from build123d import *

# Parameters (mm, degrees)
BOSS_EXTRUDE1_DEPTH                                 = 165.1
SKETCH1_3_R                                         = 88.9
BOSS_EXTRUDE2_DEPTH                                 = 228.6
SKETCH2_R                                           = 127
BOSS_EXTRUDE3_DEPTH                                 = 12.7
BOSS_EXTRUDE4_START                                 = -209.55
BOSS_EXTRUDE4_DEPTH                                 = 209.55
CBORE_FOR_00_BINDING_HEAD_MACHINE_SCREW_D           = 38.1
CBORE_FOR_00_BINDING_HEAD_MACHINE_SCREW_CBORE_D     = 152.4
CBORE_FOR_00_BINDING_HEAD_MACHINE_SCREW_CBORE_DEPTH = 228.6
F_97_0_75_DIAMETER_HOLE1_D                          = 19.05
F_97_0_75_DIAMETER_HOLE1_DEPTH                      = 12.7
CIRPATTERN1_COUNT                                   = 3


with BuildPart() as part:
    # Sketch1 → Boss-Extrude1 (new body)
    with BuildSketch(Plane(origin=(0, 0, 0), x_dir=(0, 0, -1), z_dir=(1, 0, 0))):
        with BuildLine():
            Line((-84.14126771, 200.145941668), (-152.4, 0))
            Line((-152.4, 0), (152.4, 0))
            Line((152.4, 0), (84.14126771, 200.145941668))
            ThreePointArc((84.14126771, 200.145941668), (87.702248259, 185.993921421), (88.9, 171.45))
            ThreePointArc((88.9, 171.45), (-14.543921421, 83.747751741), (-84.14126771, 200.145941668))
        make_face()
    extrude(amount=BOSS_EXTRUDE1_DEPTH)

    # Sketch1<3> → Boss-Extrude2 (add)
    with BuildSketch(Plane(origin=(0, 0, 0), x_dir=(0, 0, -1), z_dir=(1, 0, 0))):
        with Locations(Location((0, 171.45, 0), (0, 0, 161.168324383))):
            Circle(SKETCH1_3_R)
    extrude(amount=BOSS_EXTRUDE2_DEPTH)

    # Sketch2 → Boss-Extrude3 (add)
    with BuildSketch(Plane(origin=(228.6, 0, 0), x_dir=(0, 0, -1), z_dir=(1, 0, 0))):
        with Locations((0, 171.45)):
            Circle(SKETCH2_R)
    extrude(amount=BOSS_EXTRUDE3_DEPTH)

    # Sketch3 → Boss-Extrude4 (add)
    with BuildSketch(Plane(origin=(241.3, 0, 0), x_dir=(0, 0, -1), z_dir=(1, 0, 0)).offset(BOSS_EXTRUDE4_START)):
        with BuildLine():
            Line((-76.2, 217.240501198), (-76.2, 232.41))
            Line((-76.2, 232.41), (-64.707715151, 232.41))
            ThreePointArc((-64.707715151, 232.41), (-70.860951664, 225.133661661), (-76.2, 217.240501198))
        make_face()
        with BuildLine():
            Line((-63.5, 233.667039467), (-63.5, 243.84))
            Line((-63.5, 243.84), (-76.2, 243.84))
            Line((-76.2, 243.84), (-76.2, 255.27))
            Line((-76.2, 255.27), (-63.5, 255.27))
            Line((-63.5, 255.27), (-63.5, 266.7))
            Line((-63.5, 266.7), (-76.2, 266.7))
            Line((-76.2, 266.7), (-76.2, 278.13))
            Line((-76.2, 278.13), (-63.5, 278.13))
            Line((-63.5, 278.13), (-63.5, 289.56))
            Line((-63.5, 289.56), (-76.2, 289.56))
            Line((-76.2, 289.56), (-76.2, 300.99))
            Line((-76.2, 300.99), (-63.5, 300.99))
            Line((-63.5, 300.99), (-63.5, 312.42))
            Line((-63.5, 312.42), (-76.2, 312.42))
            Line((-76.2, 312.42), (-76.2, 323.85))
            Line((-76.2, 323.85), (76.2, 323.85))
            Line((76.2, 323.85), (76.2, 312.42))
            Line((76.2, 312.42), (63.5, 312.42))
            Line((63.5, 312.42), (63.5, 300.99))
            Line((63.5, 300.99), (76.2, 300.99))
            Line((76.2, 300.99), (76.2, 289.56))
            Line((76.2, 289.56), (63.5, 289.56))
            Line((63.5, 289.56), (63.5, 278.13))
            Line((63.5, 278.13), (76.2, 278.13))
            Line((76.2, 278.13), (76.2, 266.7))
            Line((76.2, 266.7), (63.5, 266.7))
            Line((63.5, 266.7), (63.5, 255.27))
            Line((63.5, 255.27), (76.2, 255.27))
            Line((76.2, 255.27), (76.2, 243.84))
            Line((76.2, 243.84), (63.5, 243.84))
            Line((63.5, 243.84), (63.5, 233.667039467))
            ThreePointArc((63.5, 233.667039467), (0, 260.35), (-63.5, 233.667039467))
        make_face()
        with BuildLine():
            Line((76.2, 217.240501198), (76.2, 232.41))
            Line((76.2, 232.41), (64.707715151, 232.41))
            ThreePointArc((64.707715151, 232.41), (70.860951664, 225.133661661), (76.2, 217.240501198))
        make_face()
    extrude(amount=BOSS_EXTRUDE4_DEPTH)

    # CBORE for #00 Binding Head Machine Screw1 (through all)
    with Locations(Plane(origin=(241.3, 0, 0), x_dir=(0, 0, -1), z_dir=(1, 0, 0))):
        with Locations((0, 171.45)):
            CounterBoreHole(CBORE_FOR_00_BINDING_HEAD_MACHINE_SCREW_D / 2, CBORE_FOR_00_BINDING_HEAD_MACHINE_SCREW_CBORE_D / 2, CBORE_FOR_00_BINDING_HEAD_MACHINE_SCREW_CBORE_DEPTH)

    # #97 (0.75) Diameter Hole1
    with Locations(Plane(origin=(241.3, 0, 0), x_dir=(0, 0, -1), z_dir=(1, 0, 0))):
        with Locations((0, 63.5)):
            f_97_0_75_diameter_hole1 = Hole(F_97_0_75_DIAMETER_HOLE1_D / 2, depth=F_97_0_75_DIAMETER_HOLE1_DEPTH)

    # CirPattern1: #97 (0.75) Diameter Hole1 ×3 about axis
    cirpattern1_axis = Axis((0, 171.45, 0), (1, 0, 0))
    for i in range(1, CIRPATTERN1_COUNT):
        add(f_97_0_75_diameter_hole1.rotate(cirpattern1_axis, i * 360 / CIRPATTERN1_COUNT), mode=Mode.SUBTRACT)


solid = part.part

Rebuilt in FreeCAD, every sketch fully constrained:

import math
import FreeCAD as App
import Part
import Sketcher

V = App.Vector
Q = App.Units.Quantity

doc = App.newDocument("Part")
params = doc.addObject("Spreadsheet::Sheet", "Params")
for row, (alias, value) in enumerate([
    ("sketch1_radius", "3.5 in"),
    ("sketch1_height", "12 in"),
    ("pad1_length", "6.5 in"),
    ("sketch2_diameter", "7 in"),
    ("pad2_length", "9 in"),
    ("sketch3_diameter", "10 in"),
    ("pad3_length", "0.5 in"),
    ("sketch4_radius", "3.5 in"),
    ("sketch4_height", "6 in"),
    ("sketch4_height2", "0.5 in"),
    ("sketch4_width", "0.45 in"),
    ("sketch4_width2", "2.4 in"),
    ("pad4_length", "8.25 in"),
    ("sketch5_diameter", "1.5 in"),
    ("hole_diameter", "1.5 in"),
    ("hole_cbore_diameter", "6 in"),
    ("hole_cbore_depth", "9 in"),
    ("sketch6_diameter", "0.75 in"),
    ("hole2_diameter", "0.75 in"),
    ("hole2_depth", "0.5 in"),
], start=1):
    params.set(f"A{row}", alias)
    params.set(f"B{row}", "=" + value)
    params.setAlias(f"B{row}", alias)

body = doc.addObject("PartDesign::Body", "Body")

# Sketch on YZ plane
sketch1 = body.newObject("Sketcher::SketchObject", "Sketch")
sketch1.AttachmentSupport = (doc.getObject("YZ_Plane"), [""])
sketch1.MapMode = "FlatFace"
sketch1.addGeometry(Part.LineSegment(V(200.145942, 84.141268, 0), V(0, 152.4, 0)), False)
sketch1.addGeometry(Part.LineSegment(V(0, 152.4, 0), V(0, -152.4, 0)), False)
sketch1.addGeometry(Part.LineSegment(V(0, -152.4, 0), V(200.145942, -84.141268, 0)), False)
sketch1.addGeometry(Part.ArcOfCircle(Part.Circle(V(171.45, 0, 0), V(0, 0, 1), 88.9), math.radians(-90), math.radians(-71.168324)), False)
sketch1.addGeometry(Part.ArcOfCircle(Part.Circle(V(171.45, 0, 0), V(0, 0, 1), 88.9), math.radians(71.168324), math.radians(270)), False)
sketch1.addConstraint(Sketcher.Constraint("Coincident", 0, 2, 1, 1))
sketch1.addConstraint(Sketcher.Constraint("Coincident", 1, 2, 2, 1))
sketch1.addConstraint(Sketcher.Constraint("Tangent", 2, 2, 3, 2))
sketch1.addConstraint(Sketcher.Constraint("Tangent", 3, 1, 4, 2))
sketch1.addConstraint(Sketcher.Constraint("Tangent", 4, 1, 0, 1))
sketch1.addConstraint(Sketcher.Constraint("Vertical", 1))
sketch1.addConstraint(Sketcher.Constraint("Equal", 3, 4))
sketch1.addConstraint(Sketcher.Constraint("Symmetric", 0, 2, 1, 2, -1, 1))
sketch1.addConstraint(Sketcher.Constraint("PointOnObject", 3, 3, -1))
sketch1.addConstraint(Sketcher.Constraint("Vertical", 4, 3, 3, 1))
sketch1.addConstraint(Sketcher.Constraint("Radius", 3, Q("3.5 in")))
sketch1.addConstraint(Sketcher.Constraint("DistanceY", 1, 2, 1, 1, Q("12 in")))
sketch1.addConstraint(Sketcher.Constraint("DistanceX", -1, 1, 3, 3, Q("6.75 in")))
sketch1.setExpression("Constraints[10]", "Params.sketch1_radius")
sketch1.setExpression("Constraints[11]", "Params.sketch1_height")
pad1 = body.newObject("PartDesign::Pad", "Pad")
pad1.Profile = sketch1
pad1.setExpression("Length", "Params.pad1_length")

# Sketch on YZ plane
sketch2 = body.newObject("Sketcher::SketchObject", "Sketch001")
sketch2.AttachmentSupport = (doc.getObject("YZ_Plane"), [""])
sketch2.MapMode = "FlatFace"
sketch2.addGeometry(Part.Circle(V(171.45, 0, 0), V(0, 0, 1), 88.9), False)
sketch2.addConstraint(Sketcher.Constraint("PointOnObject", 0, 3, -1))
sketch2.addConstraint(Sketcher.Constraint("Diameter", 0, Q("7 in")))
sketch2.addConstraint(Sketcher.Constraint("DistanceX", -1, 1, 0, 3, Q("6.75 in")))
sketch2.setExpression("Constraints[1]", "Params.sketch2_diameter")
pad2 = body.newObject("PartDesign::Pad", "Pad001")
pad2.Profile = sketch2
pad2.setExpression("Length", "Params.pad2_length")

# Sketch on YZ plane
sketch3 = body.newObject("Sketcher::SketchObject", "Sketch002")
sketch3.AttachmentSupport = (doc.getObject("YZ_Plane"), [""])
sketch3.MapMode = "FlatFace"
sketch3.AttachmentOffset = App.Placement(V(0, 0, 9 * 25.4), App.Rotation())
sketch3.addGeometry(Part.Circle(V(171.45, 0, 0), V(0, 0, 1), 127), False)
sketch3.addConstraint(Sketcher.Constraint("PointOnObject", 0, 3, -1))
sketch3.addConstraint(Sketcher.Constraint("Diameter", 0, Q("10 in")))
sketch3.addConstraint(Sketcher.Constraint("DistanceX", -1, 1, 0, 3, Q("6.75 in")))
sketch3.setExpression("Constraints[1]", "Params.sketch3_diameter")
pad3 = body.newObject("PartDesign::Pad", "Pad002")
pad3.Profile = sketch3
pad3.setExpression("Length", "Params.pad3_length")

# Sketch on YZ plane
sketch4 = body.newObject("Sketcher::SketchObject", "Sketch003")
sketch4.AttachmentSupport = (doc.getObject("YZ_Plane"), [""])
sketch4.MapMode = "FlatFace"
sketch4.AttachmentOffset = App.Placement(V(0, 0, 1.25 * 25.4), App.Rotation())
sketch4.addGeometry(Part.LineSegment(V(232.41, 76.2, 0), V(217.240501, 76.2, 0)), False)
sketch4.addGeometry(Part.ArcOfCircle(Part.Circle(V(171.45, 0, 0), V(0, 0, 1), 88.9), math.radians(46.708192), math.radians(58.997281)), False)
sketch4.addGeometry(Part.LineSegment(V(232.41, 64.707715, 0), V(232.41, 76.2, 0)), False)
sketch4.addGeometry(Part.LineSegment(V(243.84, 63.5, 0), V(233.667039, 63.5, 0)), False)
sketch4.addGeometry(Part.ArcOfCircle(Part.Circle(V(171.45, 0, 0), V(0, 0, 1), 88.9), math.radians(-45.584691), math.radians(45.584691)), False)
sketch4.addGeometry(Part.LineSegment(V(233.667039, -63.5, 0), V(243.84, -63.5, 0)), False)
sketch4.addGeometry(Part.LineSegment(V(243.84, -63.5, 0), V(243.84, -76.2, 0)), False)
sketch4.addGeometry(Part.LineSegment(V(243.84, -76.2, 0), V(255.27, -76.2, 0)), False)
sketch4.addGeometry(Part.LineSegment(V(255.27, -76.2, 0), V(255.27, -63.5, 0)), False)
sketch4.addGeometry(Part.LineSegment(V(255.27, -63.5, 0), V(266.7, -63.5, 0)), False)
sketch4.addGeometry(Part.LineSegment(V(266.7, -63.5, 0), V(266.7, -76.2, 0)), False)
sketch4.addGeometry(Part.LineSegment(V(266.7, -76.2, 0), V(278.13, -76.2, 0)), False)
sketch4.addGeometry(Part.LineSegment(V(278.13, -76.2, 0), V(278.13, -63.5, 0)), False)
sketch4.addGeometry(Part.LineSegment(V(278.13, -63.5, 0), V(289.56, -63.5, 0)), False)
sketch4.addGeometry(Part.LineSegment(V(289.56, -63.5, 0), V(289.56, -76.2, 0)), False)
sketch4.addGeometry(Part.LineSegment(V(289.56, -76.2, 0), V(300.99, -76.2, 0)), False)
sketch4.addGeometry(Part.LineSegment(V(300.99, -76.2, 0), V(300.99, -63.5, 0)), False)
sketch4.addGeometry(Part.LineSegment(V(300.99, -63.5, 0), V(312.42, -63.5, 0)), False)
sketch4.addGeometry(Part.LineSegment(V(312.42, -63.5, 0), V(312.42, -76.2, 0)), False)
sketch4.addGeometry(Part.LineSegment(V(312.42, -76.2, 0), V(323.85, -76.2, 0)), False)
sketch4.addGeometry(Part.LineSegment(V(323.85, -76.2, 0), V(323.85, 76.2, 0)), False)
sketch4.addGeometry(Part.LineSegment(V(323.85, 76.2, 0), V(312.42, 76.2, 0)), False)
sketch4.addGeometry(Part.LineSegment(V(312.42, 76.2, 0), V(312.42, 63.5, 0)), False)
sketch4.addGeometry(Part.LineSegment(V(312.42, 63.5, 0), V(300.99, 63.5, 0)), False)
sketch4.addGeometry(Part.LineSegment(V(300.99, 63.5, 0), V(300.99, 76.2, 0)), False)
sketch4.addGeometry(Part.LineSegment(V(300.99, 76.2, 0), V(289.56, 76.2, 0)), False)
sketch4.addGeometry(Part.LineSegment(V(289.56, 76.2, 0), V(289.56, 63.5, 0)), False)
sketch4.addGeometry(Part.LineSegment(V(289.56, 63.5, 0), V(278.13, 63.5, 0)), False)
sketch4.addGeometry(Part.LineSegment(V(278.13, 63.5, 0), V(278.13, 76.2, 0)), False)
sketch4.addGeometry(Part.LineSegment(V(278.13, 76.2, 0), V(266.7, 76.2, 0)), False)
sketch4.addGeometry(Part.LineSegment(V(266.7, 76.2, 0), V(266.7, 63.5, 0)), False)
sketch4.addGeometry(Part.LineSegment(V(266.7, 63.5, 0), V(255.27, 63.5, 0)), False)
sketch4.addGeometry(Part.LineSegment(V(255.27, 63.5, 0), V(255.27, 76.2, 0)), False)
sketch4.addGeometry(Part.LineSegment(V(255.27, 76.2, 0), V(243.84, 76.2, 0)), False)
sketch4.addGeometry(Part.LineSegment(V(243.84, 76.2, 0), V(243.84, 63.5, 0)), False)
sketch4.addGeometry(Part.LineSegment(V(217.240501, -76.2, 0), V(232.41, -76.2, 0)), False)
sketch4.addGeometry(Part.LineSegment(V(232.41, -76.2, 0), V(232.41, -64.707715, 0)), False)
sketch4.addGeometry(Part.ArcOfCircle(Part.Circle(V(171.45, 0, 0), V(0, 0, 1), 88.9), math.radians(-58.997281), math.radians(-46.708192)), False)
sketch4.addConstraint(Sketcher.Constraint("Coincident", 0, 2, 1, 2))
sketch4.addConstraint(Sketcher.Constraint("Coincident", 1, 1, 2, 1))
sketch4.addConstraint(Sketcher.Constraint("Coincident", 2, 2, 0, 1))
sketch4.addConstraint(Sketcher.Constraint("Coincident", 3, 2, 4, 2))
sketch4.addConstraint(Sketcher.Constraint("Coincident", 4, 1, 5, 1))
sketch4.addConstraint(Sketcher.Constraint("Coincident", 5, 2, 6, 1))
sketch4.addConstraint(Sketcher.Constraint("Coincident", 6, 2, 7, 1))
sketch4.addConstraint(Sketcher.Constraint("Coincident", 7, 2, 8, 1))
sketch4.addConstraint(Sketcher.Constraint("Coincident", 8, 2, 9, 1))
sketch4.addConstraint(Sketcher.Constraint("Coincident", 9, 2, 10, 1))
sketch4.addConstraint(Sketcher.Constraint("Coincident", 10, 2, 11, 1))
sketch4.addConstraint(Sketcher.Constraint("Coincident", 11, 2, 12, 1))
sketch4.addConstraint(Sketcher.Constraint("Coincident", 12, 2, 13, 1))
sketch4.addConstraint(Sketcher.Constraint("Coincident", 13, 2, 14, 1))
sketch4.addConstraint(Sketcher.Constraint("Coincident", 14, 2, 15, 1))
sketch4.addConstraint(Sketcher.Constraint("Coincident", 15, 2, 16, 1))
sketch4.addConstraint(Sketcher.Constraint("Coincident", 16, 2, 17, 1))
sketch4.addConstraint(Sketcher.Constraint("Coincident", 17, 2, 18, 1))
sketch4.addConstraint(Sketcher.Constraint("Coincident", 18, 2, 19, 1))
sketch4.addConstraint(Sketcher.Constraint("Coincident", 19, 2, 20, 1))
sketch4.addConstraint(Sketcher.Constraint("Coincident", 20, 2, 21, 1))
sketch4.addConstraint(Sketcher.Constraint("Coincident", 21, 2, 22, 1))
sketch4.addConstraint(Sketcher.Constraint("Coincident", 22, 2, 23, 1))
sketch4.addConstraint(Sketcher.Constraint("Coincident", 23, 2, 24, 1))
sketch4.addConstraint(Sketcher.Constraint("Coincident", 24, 2, 25, 1))
sketch4.addConstraint(Sketcher.Constraint("Coincident", 25, 2, 26, 1))
sketch4.addConstraint(Sketcher.Constraint("Coincident", 26, 2, 27, 1))
sketch4.addConstraint(Sketcher.Constraint("Coincident", 27, 2, 28, 1))
sketch4.addConstraint(Sketcher.Constraint("Coincident", 28, 2, 29, 1))
sketch4.addConstraint(Sketcher.Constraint("Coincident", 29, 2, 30, 1))
sketch4.addConstraint(Sketcher.Constraint("Coincident", 30, 2, 31, 1))
sketch4.addConstraint(Sketcher.Constraint("Coincident", 31, 2, 32, 1))
sketch4.addConstraint(Sketcher.Constraint("Coincident", 32, 2, 33, 1))
sketch4.addConstraint(Sketcher.Constraint("Coincident", 33, 2, 34, 1))
sketch4.addConstraint(Sketcher.Constraint("Coincident", 34, 2, 3, 1))
sketch4.addConstraint(Sketcher.Constraint("Coincident", 35, 2, 36, 1))
sketch4.addConstraint(Sketcher.Constraint("Coincident", 36, 2, 37, 2))
sketch4.addConstraint(Sketcher.Constraint("Coincident", 37, 1, 35, 1))
sketch4.addConstraint(Sketcher.Constraint("Horizontal", 0))
sketch4.addConstraint(Sketcher.Constraint("Vertical", 2))
sketch4.addConstraint(Sketcher.Constraint("Horizontal", 3))
sketch4.addConstraint(Sketcher.Constraint("Horizontal", 5))
sketch4.addConstraint(Sketcher.Constraint("Vertical", 6))
sketch4.addConstraint(Sketcher.Constraint("Horizontal", 7))
sketch4.addConstraint(Sketcher.Constraint("Vertical", 8))
sketch4.addConstraint(Sketcher.Constraint("Horizontal", 9))
sketch4.addConstraint(Sketcher.Constraint("Vertical", 10))
sketch4.addConstraint(Sketcher.Constraint("Horizontal", 11))
sketch4.addConstraint(Sketcher.Constraint("Vertical", 12))
sketch4.addConstraint(Sketcher.Constraint("Horizontal", 13))
sketch4.addConstraint(Sketcher.Constraint("Vertical", 14))
sketch4.addConstraint(Sketcher.Constraint("Horizontal", 15))
sketch4.addConstraint(Sketcher.Constraint("Vertical", 16))
sketch4.addConstraint(Sketcher.Constraint("Horizontal", 17))
sketch4.addConstraint(Sketcher.Constraint("Vertical", 18))
sketch4.addConstraint(Sketcher.Constraint("Horizontal", 19))
sketch4.addConstraint(Sketcher.Constraint("Vertical", 20))
sketch4.addConstraint(Sketcher.Constraint("Horizontal", 21))
sketch4.addConstraint(Sketcher.Constraint("Vertical", 22))
sketch4.addConstraint(Sketcher.Constraint("Horizontal", 23))
sketch4.addConstraint(Sketcher.Constraint("Vertical", 24))
sketch4.addConstraint(Sketcher.Constraint("Horizontal", 25))
sketch4.addConstraint(Sketcher.Constraint("Vertical", 26))
sketch4.addConstraint(Sketcher.Constraint("Horizontal", 27))
sketch4.addConstraint(Sketcher.Constraint("Vertical", 28))
sketch4.addConstraint(Sketcher.Constraint("Horizontal", 29))
sketch4.addConstraint(Sketcher.Constraint("Vertical", 30))
sketch4.addConstraint(Sketcher.Constraint("Horizontal", 31))
sketch4.addConstraint(Sketcher.Constraint("Vertical", 32))
sketch4.addConstraint(Sketcher.Constraint("Horizontal", 33))
sketch4.addConstraint(Sketcher.Constraint("Vertical", 34))
sketch4.addConstraint(Sketcher.Constraint("Horizontal", 35))
sketch4.addConstraint(Sketcher.Constraint("Vertical", 36))
sketch4.addConstraint(Sketcher.Constraint("Coincident", 4, 3, 1, 3))
sketch4.addConstraint(Sketcher.Constraint("Coincident", 37, 3, 1, 3))
sketch4.addConstraint(Sketcher.Constraint("Equal", 1, 4))
sketch4.addConstraint(Sketcher.Constraint("Equal", 4, 37))
sketch4.addConstraint(Sketcher.Constraint("Symmetric", 3, 2, 4, 1, -1))
sketch4.addConstraint(Sketcher.Constraint("Symmetric", 18, 2, 21, 2, -1))
sketch4.addConstraint(Sketcher.Constraint("Symmetric", 16, 2, 23, 2, -1))
sketch4.addConstraint(Sketcher.Constraint("Symmetric", 14, 2, 25, 2, -1))
sketch4.addConstraint(Sketcher.Constraint("Symmetric", 12, 2, 27, 2, -1))
sketch4.addConstraint(Sketcher.Constraint("Symmetric", 10, 2, 29, 2, -1))
sketch4.addConstraint(Sketcher.Constraint("Symmetric", 8, 2, 31, 2, -1))
sketch4.addConstraint(Sketcher.Constraint("Symmetric", 6, 2, 33, 2, -1))
sketch4.addConstraint(Sketcher.Constraint("Symmetric", 2, 2, 35, 2, -1))
sketch4.addConstraint(Sketcher.Constraint("Horizontal", 5, 2, 8, 2))
sketch4.addConstraint(Sketcher.Constraint("Horizontal", 7, 2, 10, 2))
sketch4.addConstraint(Sketcher.Constraint("Horizontal", 9, 2, 12, 2))
sketch4.addConstraint(Sketcher.Constraint("Horizontal", 11, 2, 14, 2))
sketch4.addConstraint(Sketcher.Constraint("Horizontal", 13, 2, 16, 2))
sketch4.addConstraint(Sketcher.Constraint("Horizontal", 15, 2, 18, 2))
sketch4.addConstraint(Sketcher.Constraint("Horizontal", 2, 2, 20, 2))
sketch4.addConstraint(Sketcher.Constraint("Equal", 7, 9))
sketch4.addConstraint(Sketcher.Constraint("Equal", 9, 11))
sketch4.addConstraint(Sketcher.Constraint("Equal", 11, 13))
sketch4.addConstraint(Sketcher.Constraint("Equal", 13, 15))
sketch4.addConstraint(Sketcher.Constraint("Equal", 15, 17))
sketch4.addConstraint(Sketcher.Constraint("Equal", 17, 19))
sketch4.addConstraint(Sketcher.Constraint("Radius", 1, Q("3.5 in")))
sketch4.addConstraint(Sketcher.Constraint("DistanceY", 20, 1, 20, 2, Q("6 in")))
sketch4.addConstraint(Sketcher.Constraint("DistanceY", 6, 2, 6, 1, Q("0.5 in")))
sketch4.addConstraint(Sketcher.Constraint("DistanceX", 7, 1, 7, 2, Q("0.45 in")))
sketch4.addConstraint(Sketcher.Constraint("DistanceX", -1, 1, 5, 2, Q("9.6 in")))
sketch4.addConstraint(Sketcher.Constraint("DistanceX", 1, 3, 1, 1, Q("2.4 in")))
sketch4.addConstraint(Sketcher.Constraint("DistanceX", 37, 3, 7, 2, Q("3.3 in")))
sketch4.setExpression("Constraints[99]", "Params.sketch4_radius")
sketch4.setExpression("Constraints[100]", "Params.sketch4_height")
sketch4.setExpression("Constraints[101]", "Params.sketch4_height2")
sketch4.setExpression("Constraints[102]", "Params.sketch4_width")
sketch4.setExpression("Constraints[104]", "Params.sketch4_width2")
pad4 = body.newObject("PartDesign::Pad", "Pad003")
pad4.Profile = sketch4
pad4.setExpression("Length", "Params.pad4_length")

# Sketch on YZ plane
sketch5 = body.newObject("Sketcher::SketchObject", "Sketch004")
sketch5.AttachmentSupport = (doc.getObject("YZ_Plane"), [""])
sketch5.MapMode = "FlatFace"
sketch5.AttachmentOffset = App.Placement(V(0, 0, 9.5 * 25.4), App.Rotation())
sketch5.addGeometry(Part.Circle(V(171.45, 0, 0), V(0, 0, 1), 19.05), False)
sketch5.addConstraint(Sketcher.Constraint("PointOnObject", 0, 3, -1))
sketch5.addConstraint(Sketcher.Constraint("Diameter", 0, Q("1.5 in")))
sketch5.addConstraint(Sketcher.Constraint("DistanceX", -1, 1, 0, 3, Q("6.75 in")))
sketch5.setExpression("Constraints[1]", "Params.sketch5_diameter")
doc.recompute()
hole = body.newObject("PartDesign::Hole", "Hole")
hole.Profile = sketch5
hole.ThreadType = "None"
hole.setExpression("Diameter", "Params.hole_diameter")
hole.DepthType = "ThroughAll"
hole.HoleCutType = "Counterbore"
hole.setExpression("HoleCutDiameter", "Params.hole_cbore_diameter")
hole.setExpression("HoleCutDepth", "Params.hole_cbore_depth")

# Sketch on YZ plane
sketch6 = body.newObject("Sketcher::SketchObject", "Sketch005")
sketch6.AttachmentSupport = (doc.getObject("YZ_Plane"), [""])
sketch6.MapMode = "FlatFace"
sketch6.AttachmentOffset = App.Placement(V(0, 0, 9.5 * 25.4), App.Rotation())
sketch6.addGeometry(Part.Circle(V(63.5, 0, 0), V(0, 0, 1), 9.525), False)
sketch6.addConstraint(Sketcher.Constraint("PointOnObject", 0, 3, -1))
sketch6.addConstraint(Sketcher.Constraint("Diameter", 0, Q("0.75 in")))
sketch6.addConstraint(Sketcher.Constraint("DistanceX", -1, 1, 0, 3, Q("2.5 in")))
sketch6.setExpression("Constraints[1]", "Params.sketch6_diameter")
doc.recompute()
hole2 = body.newObject("PartDesign::Hole", "Hole001")
hole2.Profile = sketch6
hole2.ThreadType = "None"
hole2.setExpression("Diameter", "Params.hole2_diameter")
hole2.DepthType = "Dimension"
hole2.setExpression("Depth", "Params.hole2_depth")
hole2.DrillPoint = "Flat"
doc.recompute()

datumline = body.newObject("PartDesign::Line", "DatumLine")
datumline.Placement = App.Placement(V(0, 171.45, 0), App.Rotation(V(0, 0, 1), V(1, 0, 0)))
polarpattern = body.newObject("PartDesign::PolarPattern", "PolarPattern")
polarpattern.Originals = [hole2]
polarpattern.Axis = (datumline, [""])
polarpattern.Angle = 360
polarpattern.Occurrences = 3
body.Tip = polarpattern

doc.recompute()
